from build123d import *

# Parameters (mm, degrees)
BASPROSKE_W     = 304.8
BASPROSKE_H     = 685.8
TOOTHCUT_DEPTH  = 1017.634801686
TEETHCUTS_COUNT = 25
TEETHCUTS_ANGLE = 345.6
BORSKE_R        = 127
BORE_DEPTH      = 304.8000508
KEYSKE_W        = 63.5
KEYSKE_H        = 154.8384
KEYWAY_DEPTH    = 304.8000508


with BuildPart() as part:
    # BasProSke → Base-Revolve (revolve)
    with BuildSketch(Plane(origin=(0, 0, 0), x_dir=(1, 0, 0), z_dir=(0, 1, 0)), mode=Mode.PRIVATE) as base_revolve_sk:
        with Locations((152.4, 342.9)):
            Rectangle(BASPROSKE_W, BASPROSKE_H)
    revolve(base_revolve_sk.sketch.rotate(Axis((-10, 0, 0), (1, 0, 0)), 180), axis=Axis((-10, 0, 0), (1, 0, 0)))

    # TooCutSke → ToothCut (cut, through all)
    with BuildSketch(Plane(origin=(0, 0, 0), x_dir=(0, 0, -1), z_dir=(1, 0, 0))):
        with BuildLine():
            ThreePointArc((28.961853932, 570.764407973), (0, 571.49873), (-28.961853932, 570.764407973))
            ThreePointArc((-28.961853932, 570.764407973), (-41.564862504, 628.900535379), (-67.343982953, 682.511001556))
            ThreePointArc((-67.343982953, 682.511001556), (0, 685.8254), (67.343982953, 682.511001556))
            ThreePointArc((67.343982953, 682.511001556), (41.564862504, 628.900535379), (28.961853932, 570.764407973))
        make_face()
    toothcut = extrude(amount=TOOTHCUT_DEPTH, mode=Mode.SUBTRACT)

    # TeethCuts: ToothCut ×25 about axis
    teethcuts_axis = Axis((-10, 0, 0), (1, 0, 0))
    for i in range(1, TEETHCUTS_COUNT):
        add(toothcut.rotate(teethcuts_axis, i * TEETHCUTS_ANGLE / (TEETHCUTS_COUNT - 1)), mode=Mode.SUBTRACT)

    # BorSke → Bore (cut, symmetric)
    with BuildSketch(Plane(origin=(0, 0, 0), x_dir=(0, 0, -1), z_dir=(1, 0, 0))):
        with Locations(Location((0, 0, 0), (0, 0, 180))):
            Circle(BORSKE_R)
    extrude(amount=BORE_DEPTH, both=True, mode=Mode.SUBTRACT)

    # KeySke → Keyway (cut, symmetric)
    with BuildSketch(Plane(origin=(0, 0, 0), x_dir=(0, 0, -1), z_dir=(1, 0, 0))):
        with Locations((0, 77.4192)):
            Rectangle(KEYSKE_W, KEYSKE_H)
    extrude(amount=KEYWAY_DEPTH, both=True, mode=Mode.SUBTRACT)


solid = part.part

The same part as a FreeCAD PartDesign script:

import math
import FreeCAD as App
import Part
import Sketcher
Q = App.Units.Quantity

doc = App.newDocument("Part")
params = doc.addObject("Spreadsheet::Sheet", "Params")
for row, (alias, value) in enumerate([
    ("sketch1_width", "12 in"),
    ("sketch1_height", "27 in"),
    ("revolution_angle", "360 deg"),
    ("sketch2_radius", "10 in"),
    ("sketch2_radius2", "27.001 in"),
    ("sketch3_diameter", "10 in"),
    ("pocket2_length", "609.600102 mm"),
    ("sketch4_height", "2.5 in"),
    ("sketch4_width", "6.096 in"),
    ("pocket3_length", "609.600102 mm"),
], start=1):
    params.set(f"A{row}", alias)
    params.set(f"B{row}", "=" + value)
    params.setAlias(f"B{row}", alias)

body = doc.addObject("PartDesign::Body", "Body")

# Sketch on XZ plane
sketch1 = body.newObject("Sketcher::SketchObject", "Sketch")
sketch1.AttachmentSupport = (doc.getObject("XZ_Plane"), [""])
sketch1.MapMode = "FlatFace"
sketch1.addGeometry(Part.LineSegment(App.Vector(0, -686, 0), App.Vector(0, 0, 0)), False)
sketch1.addGeometry(Part.LineSegment(App.Vector(0, 0, 0), App.Vector(305, 0, 0)), False)
sketch1.addGeometry(Part.LineSegment(App.Vector(305, 0, 0), App.Vector(305, -686, 0)), False)
sketch1.addGeometry(Part.LineSegment(App.Vector(305, -686, 0), App.Vector(0, -686, 0)), False)
sketch1.addConstraint(Sketcher.Constraint("Coincident", 0, 2, 1, 1))
sketch1.addConstraint(Sketcher.Constraint("Coincident", 1, 2, 2, 1))
sketch1.addConstraint(Sketcher.Constraint("Coincident", 2, 2, 3, 1))
sketch1.addConstraint(Sketcher.Constraint("Coincident", 3, 2, 0, 1))
sketch1.addConstraint(Sketcher.Constraint("Vertical", 0))
sketch1.addConstraint(Sketcher.Constraint("Horizontal", 1))
sketch1.addConstraint(Sketcher.Constraint("Vertical", 2))
sketch1.addConstraint(Sketcher.Constraint("Horizontal", 3))
sketch1.addConstraint(Sketcher.Constraint("Coincident", 0, 2, -1, 1))
sketch1.addConstraint(Sketcher.Constraint("DistanceX", 1, 1, 1, 2, Q("12 in")))
sketch1.addConstraint(Sketcher.Constraint("DistanceY", 0, 1, 0, 2, Q("27 in")))
sketch1.setExpression("Constraints[9]", "Params.sketch1_width")
sketch1.setExpression("Constraints[10]", "Params.sketch1_height")
revolution = body.newObject("PartDesign::Revolution", "Revolution")
revolution.Profile = sketch1
revolution.ReferenceAxis = (sketch1, ["H_Axis"])
revolution.setExpression("Angle", "Params.revolution_angle")

# Sketch on YZ plane
sketch2 = body.newObject("Sketcher::SketchObject", "Sketch001")
sketch2.AttachmentSupport = (doc.getObject("YZ_Plane"), [""])
sketch2.MapMode = "FlatFace"
sketch2.addGeometry(Part.ArcOfCircle(Part.Circle(App.Vector(0, 0, 0), App.Vector(0, 0, 1), 571), math.radians(-2.9), math.radians(2.9)), False)
sketch2.addGeometry(Part.ArcOfCircle(Part.Circle(App.Vector(546, -282, 0), App.Vector(0, 0, 1), 254), math.radians(58), math.radians(84)), False)
sketch2.addGeometry(Part.ArcOfCircle(Part.Circle(App.Vector(0, 0, 0), App.Vector(0, 0, 1), 686), math.radians(-5.64), math.radians(5.64)), False)
sketch2.addGeometry(Part.ArcOfCircle(Part.Circle(App.Vector(546, 282, 0), App.Vector(0, 0, 1), 254), math.radians(-84), math.radians(-58)), False)
sketch2.addConstraint(Sketcher.Constraint("Coincident", 0, 1, 1, 2))
sketch2.addConstraint(Sketcher.Constraint("Coincident", 1, 1, 2, 1))
sketch2.addConstraint(Sketcher.Constraint("Coincident", 2, 2, 3, 2))
sketch2.addConstraint(Sketcher.Constraint("Coincident", 3, 1, 0, 2))
sketch2.addConstraint(Sketcher.Constraint("Coincident", 0, 3, -1, 1))
sketch2.addConstraint(Sketcher.Constraint("Coincident", 2, 3, -1, 1))
sketch2.addConstraint(Sketcher.Constraint("Equal", 1, 3))
sketch2.addConstraint(Sketcher.Constraint("Symmetric", 1, 3, 3, 3, -1))
sketch2.addConstraint(Sketcher.Constraint("Radius", 1, Q("10 in")))
sketch2.addConstraint(Sketcher.Constraint("Radius", 2, Q("27.001 in")))
sketch2.addConstraint(Sketcher.Constraint("Radius", 0, 571.49873))
sketch2.addConstraint(Sketcher.Constraint("DistanceY", 1, 3, 1, 1, 214.445599))
sketch2.addConstraint(Sketcher.Constraint("DistanceX", -1, 1, 1, 3, 546.389419))
sketch2.setExpression("Constraints[8]", "Params.sketch2_radius")
sketch2.setExpression("Constraints[9]", "Params.sketch2_radius2")
pocket1 = body.newObject("PartDesign::Pocket", "Pocket")
pocket1.Profile = sketch2
pocket1.Type = "ThroughAll"
pocket1.Reversed = True
doc.recompute()

polarpattern = body.newObject("PartDesign::PolarPattern", "PolarPattern")
polarpattern.Originals = [pocket1]
polarpattern.Axis = (doc.getObject("X_Axis"), [""])
polarpattern.Angle = 360
polarpattern.Occurrences = 25
body.Tip = polarpattern

# Sketch on YZ plane
sketch3 = body.newObject("Sketcher::SketchObject", "Sketch002")
sketch3.AttachmentSupport = (doc.getObject("YZ_Plane"), [""])
sketch3.MapMode = "FlatFace"
sketch3.addGeometry(Part.Circle(App.Vector(0, 0, 0), App.Vector(0, 0, 1), 127), False)
sketch3.addConstraint(Sketcher.Constraint("Coincident", 0, 3, -1, 1))
sketch3.addConstraint(Sketcher.Constraint("Diameter", 0, Q("10 in")))
sketch3.setExpression("Constraints[1]", "Params.sketch3_diameter")
pocket2 = body.newObject("PartDesign::Pocket", "Pocket001")
pocket2.Profile = sketch3
pocket2.setExpression("Length", "Params.pocket2_length")
pocket2.Midplane = True

# Sketch on YZ plane
sketch4 = body.newObject("Sketcher::SketchObject", "Sketch003")
sketch4.AttachmentSupport = (doc.getObject("YZ_Plane"), [""])
sketch4.MapMode = "FlatFace"
sketch4.addGeometry(Part.LineSegment(App.Vector(155, 32, 0), App.Vector(0, 32, 0)), False)
sketch4.addGeometry(Part.LineSegment(App.Vector(0, 32, 0), App.Vector(0, -32, 0)), False)
sketch4.addGeometry(Part.LineSegment(App.Vector(0, -32, 0), App.Vector(155, -32, 0)), False)
sketch4.addGeometry(Part.LineSegment(App.Vector(155, -32, 0), App.Vector(155, 32, 0)), False)
sketch4.addConstraint(Sketcher.Constraint("Coincident", 0, 2, 1, 1))
sketch4.addConstraint(Sketcher.Constraint("Coincident", 1, 2, 2, 1))
sketch4.addConstraint(Sketcher.Constraint("Coincident", 2, 2, 3, 1))
sketch4.addConstraint(Sketcher.Constraint("Coincident", 3, 2, 0, 1))
sketch4.addConstraint(Sketcher.Constraint("Horizontal", 0))
sketch4.addConstraint(Sketcher.Constraint("Vertical", 1))
sketch4.addConstraint(Sketcher.Constraint("Horizontal", 2))
sketch4.addConstraint(Sketcher.Constraint("Vertical", 3))
sketch4.addConstraint(Sketcher.Constraint("Symmetric", 0, 2, 1, 2, -1, 1))
sketch4.addConstraint(Sketcher.Constraint("DistanceY", 1, 2, 1, 1, Q("2.5 in")))
sketch4.addConstraint(Sketcher.Constraint("DistanceX", 0, 2, 0, 1, Q("6.096 in")))
sketch4.setExpression("Constraints[9]", "Params.sketch4_height")
sketch4.setExpression("Constraints[10]", "Params.sketch4_width")
pocket3 = body.newObject("PartDesign::Pocket", "Pocket002")
pocket3.Profile = sketch4
pocket3.setExpression("Length", "Params.pocket3_length")
pocket3.Midplane = True

doc.recompute()
